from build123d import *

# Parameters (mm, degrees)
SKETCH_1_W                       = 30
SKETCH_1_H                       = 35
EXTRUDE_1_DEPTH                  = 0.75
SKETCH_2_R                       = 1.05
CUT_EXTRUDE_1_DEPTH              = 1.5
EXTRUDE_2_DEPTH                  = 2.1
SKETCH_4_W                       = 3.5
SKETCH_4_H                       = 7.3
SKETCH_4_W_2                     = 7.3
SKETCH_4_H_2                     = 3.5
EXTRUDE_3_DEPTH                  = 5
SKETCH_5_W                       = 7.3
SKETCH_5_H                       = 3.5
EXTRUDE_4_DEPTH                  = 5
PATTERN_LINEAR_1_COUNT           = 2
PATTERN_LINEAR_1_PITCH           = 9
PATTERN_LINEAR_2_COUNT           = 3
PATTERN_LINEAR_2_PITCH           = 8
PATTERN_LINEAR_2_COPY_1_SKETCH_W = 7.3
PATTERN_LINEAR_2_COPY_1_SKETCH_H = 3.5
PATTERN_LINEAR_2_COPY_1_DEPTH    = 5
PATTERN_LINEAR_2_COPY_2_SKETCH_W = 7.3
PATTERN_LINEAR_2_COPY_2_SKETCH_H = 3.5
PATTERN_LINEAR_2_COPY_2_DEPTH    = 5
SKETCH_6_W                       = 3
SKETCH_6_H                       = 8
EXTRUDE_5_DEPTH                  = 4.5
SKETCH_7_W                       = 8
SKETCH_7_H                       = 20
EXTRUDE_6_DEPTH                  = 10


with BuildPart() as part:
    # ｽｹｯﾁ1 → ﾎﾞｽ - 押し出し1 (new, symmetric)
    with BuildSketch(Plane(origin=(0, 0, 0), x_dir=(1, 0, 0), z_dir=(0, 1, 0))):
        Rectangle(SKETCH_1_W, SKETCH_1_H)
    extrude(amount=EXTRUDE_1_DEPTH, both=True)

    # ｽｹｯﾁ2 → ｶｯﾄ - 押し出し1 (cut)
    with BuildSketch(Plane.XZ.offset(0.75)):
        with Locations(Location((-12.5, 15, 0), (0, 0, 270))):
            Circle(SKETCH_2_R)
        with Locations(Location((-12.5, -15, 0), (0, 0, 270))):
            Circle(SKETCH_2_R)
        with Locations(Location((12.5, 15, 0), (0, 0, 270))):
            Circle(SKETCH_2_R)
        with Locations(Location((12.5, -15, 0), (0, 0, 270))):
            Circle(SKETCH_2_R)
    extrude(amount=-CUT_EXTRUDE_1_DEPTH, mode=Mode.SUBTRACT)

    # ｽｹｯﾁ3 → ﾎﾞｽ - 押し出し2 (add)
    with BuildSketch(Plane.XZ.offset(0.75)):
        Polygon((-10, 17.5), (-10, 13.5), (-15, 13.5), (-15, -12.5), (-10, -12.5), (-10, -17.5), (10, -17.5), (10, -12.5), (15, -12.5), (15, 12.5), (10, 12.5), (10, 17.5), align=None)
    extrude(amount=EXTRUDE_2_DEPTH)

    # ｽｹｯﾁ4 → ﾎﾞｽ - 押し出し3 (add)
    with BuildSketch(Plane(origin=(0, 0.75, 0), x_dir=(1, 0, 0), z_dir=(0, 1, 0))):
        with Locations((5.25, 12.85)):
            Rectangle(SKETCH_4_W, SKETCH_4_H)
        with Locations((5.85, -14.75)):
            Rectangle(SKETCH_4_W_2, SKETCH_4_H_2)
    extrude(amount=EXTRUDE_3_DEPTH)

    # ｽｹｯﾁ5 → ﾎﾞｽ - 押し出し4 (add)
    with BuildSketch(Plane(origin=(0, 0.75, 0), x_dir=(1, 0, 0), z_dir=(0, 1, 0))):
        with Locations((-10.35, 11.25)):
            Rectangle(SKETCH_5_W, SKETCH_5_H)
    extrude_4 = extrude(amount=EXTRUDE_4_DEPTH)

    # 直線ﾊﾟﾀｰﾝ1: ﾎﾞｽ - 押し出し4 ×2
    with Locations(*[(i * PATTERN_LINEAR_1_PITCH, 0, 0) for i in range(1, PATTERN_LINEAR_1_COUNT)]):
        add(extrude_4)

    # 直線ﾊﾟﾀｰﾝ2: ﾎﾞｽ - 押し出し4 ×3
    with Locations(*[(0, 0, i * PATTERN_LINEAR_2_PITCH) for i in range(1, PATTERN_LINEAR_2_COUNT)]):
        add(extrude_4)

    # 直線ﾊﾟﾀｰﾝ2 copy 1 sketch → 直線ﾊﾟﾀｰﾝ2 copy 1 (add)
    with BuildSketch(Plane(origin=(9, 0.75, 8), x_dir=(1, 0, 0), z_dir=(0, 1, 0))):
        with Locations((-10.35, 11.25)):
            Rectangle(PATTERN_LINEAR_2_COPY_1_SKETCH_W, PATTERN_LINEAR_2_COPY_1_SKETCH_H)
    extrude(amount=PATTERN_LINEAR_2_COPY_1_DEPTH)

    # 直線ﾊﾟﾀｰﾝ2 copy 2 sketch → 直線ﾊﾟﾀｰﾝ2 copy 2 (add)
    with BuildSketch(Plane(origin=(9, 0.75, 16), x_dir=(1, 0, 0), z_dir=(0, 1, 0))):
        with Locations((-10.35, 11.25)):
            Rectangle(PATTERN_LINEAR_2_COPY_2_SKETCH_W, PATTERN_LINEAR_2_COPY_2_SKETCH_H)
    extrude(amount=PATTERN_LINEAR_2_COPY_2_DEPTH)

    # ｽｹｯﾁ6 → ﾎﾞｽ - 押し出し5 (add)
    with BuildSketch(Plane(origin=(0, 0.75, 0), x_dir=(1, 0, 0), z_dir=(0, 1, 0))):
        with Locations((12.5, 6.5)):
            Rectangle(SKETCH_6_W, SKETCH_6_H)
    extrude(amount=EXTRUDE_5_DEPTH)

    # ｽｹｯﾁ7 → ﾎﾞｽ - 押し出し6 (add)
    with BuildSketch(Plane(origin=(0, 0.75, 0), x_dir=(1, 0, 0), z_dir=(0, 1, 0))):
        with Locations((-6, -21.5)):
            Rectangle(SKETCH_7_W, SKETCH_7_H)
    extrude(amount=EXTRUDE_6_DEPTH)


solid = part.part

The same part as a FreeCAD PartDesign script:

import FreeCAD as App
import Part
import Sketcher
from FreeCAD import Vector
Q = App.Units.Quantity


def add_polygon(sketch, points):
    """Adds a closed chain of lines whose ends are joined by coincident constraints."""
    first, n = sketch.GeometryCount, len(points)
    for a, b in zip(points, points[1:] + points[:1]):
        sketch.addGeometry(Part.LineSegment(App.Vector(*a, 0), App.Vector(*b, 0)), False)
    for i in range(n):
        sketch.addConstraint(Sketcher.Constraint("Coincident", first + i, 2, first + (i + 1) % n, 1))

doc = App.newDocument("Part")
body = doc.addObject("PartDesign::Body", "Body")

# Sketch on XZ plane
sketch1 = doc.addObject("Sketcher::SketchObject", "Sketch")
body.addObject(sketch1)
sketch1.AttachmentSupport = (doc.XZ_Plane, [""])
sketch1.MapMode = "FlatFace"
add_polygon(sketch1, [(-15, -18), (-15, 18), (15, 18), (15, -18)])  # lines 0-3
sketch1.addConstraint([
    Sketcher.Constraint("Vertical", 0),
    Sketcher.Constraint("Horizontal", 1),
    Sketcher.Constraint("Vertical", 2),
    Sketcher.Constraint("Horizontal", 3),
    Sketcher.Constraint("Symmetric", 0, 2, 2, 2, -1, 1),
    Sketcher.Constraint("DistanceX", 1, 1, 1, 2, Q("30 mm")),
    Sketcher.Constraint("DistanceY", 0, 1, 0, 2, Q("35 mm")),
])
pad1 = doc.addObject("PartDesign::Pad", "Pad")
body.addObject(pad1)
pad1.Profile = sketch1
pad1.Length = 1.5
pad1.Midplane = True

# Sketch on XZ plane
sketch2 = doc.addObject("Sketcher::SketchObject", "Sketch001")
body.addObject(sketch2)
sketch2.AttachmentSupport = (doc.XZ_Plane, [""])
sketch2.MapMode = "FlatFace"
sketch2.AttachmentOffset = App.Placement(Vector(0, 0, 0.75), App.Rotation())
sketch2.addGeometry([
    Part.Circle(Vector(-12.5, 15, 0), Vector(0, 0, 1), 1.1),
    Part.Circle(Vector(-12.5, -15, 0), Vector(0, 0, 1), 1.1),
    Part.Circle(Vector(12.5, 15, 0), Vector(0, 0, 1), 1.1),
    Part.Circle(Vector(12.5, -15, 0), Vector(0, 0, 1), 1.1),
], False)
sketch2.addConstraint([
    Sketcher.Constraint("Equal", 0, 1),
    Sketcher.Constraint("Equal", 1, 2),
    Sketcher.Constraint("Equal", 2, 3),
    Sketcher.Constraint("Symmetric", 1, 3, 2, 3, -1, 1),
    Sketcher.Constraint("Symmetric", 0, 3, 3, 3, -1, 1),
    Sketcher.Constraint("Symmetric", 0, 3, 2, 3, -2),
    Sketcher.Constraint("Diameter", 0, Q("2.1 mm")),
    Sketcher.Constraint("DistanceY", -1, 1, 0, 3, Q("15 mm")),
    Sketcher.Constraint("DistanceX", 0, 3, 2, 3, Q("25 mm")),
])
pocket1 = doc.addObject("PartDesign::Pocket", "Pocket")
body.addObject(pocket1)
pocket1.Profile = sketch2
pocket1.Length = 1.5

# Sketch on XZ plane
sketch3 = doc.addObject("Sketcher::SketchObject", "Sketch002")
body.addObject(sketch3)
sketch3.AttachmentSupport = (doc.XZ_Plane, [""])
sketch3.MapMode = "FlatFace"
sketch3.AttachmentOffset = App.Placement(Vector(0, 0, 0.75), App.Rotation())
add_polygon(sketch3, [(-10, 17.5), (-10, 13.5), (-15, 13.5), (-15, -12.5), (-10, -12.5), (-10, -17.5), (10, -17.5), (10, -12.5), (15, -12.5), (15, 12.5), (10, 12.5), (10, 17.5)])  # lines 0-11
sketch3.addConstraint([
    Sketcher.Constraint("Vertical", 0),
    Sketcher.Constraint("Horizontal", 1),
    Sketcher.Constraint("Vertical", 2),
    Sketcher.Constraint("Horizontal", 3),
    Sketcher.Constraint("Vertical", 4),
    Sketcher.Constraint("Horizontal", 5),
    Sketcher.Constraint("Vertical", 6),
    Sketcher.Constraint("Horizontal", 7),
    Sketcher.Constraint("Vertical", 8),
    Sketcher.Constraint("Horizontal", 9),
    Sketcher.Constraint("Vertical", 10),
    Sketcher.Constraint("Horizontal", 11),
    Sketcher.Constraint("Symmetric", 2, 2, 8, 2, -1, 1),
    Sketcher.Constraint("Symmetric", 4, 2, 10, 2, -1, 1),
    Sketcher.Constraint("Symmetric", 3, 2, 6, 2, -2),
    Sketcher.Constraint("Vertical", 0, 2, 3, 2),
    Sketcher.Constraint("Equal", 9, 4),
    Sketcher.Constraint("DistanceX", 1, 2, 1, 1, Q("5 mm")),
    Sketcher.Constraint("DistanceX", 5, 1, 5, 2, Q("20 mm")),
    Sketcher.Constraint("DistanceY", 0, 2, 0, 1, Q("4 mm")),
    Sketcher.Constraint("DistanceY", 2, 2, 2, 1, Q("26 mm")),
])
pad2 = doc.addObject("PartDesign::Pad", "Pad001")
body.addObject(pad2)
pad2.Profile = sketch3
pad2.Length = 2.1

# Sketch on XZ plane
sketch4 = doc.addObject("Sketcher::SketchObject", "Sketch003")
body.addObject(sketch4)
sketch4.AttachmentSupport = (doc.XZ_Plane, [""])
sketch4.MapMode = "FlatFace"
sketch4.AttachmentOffset = App.Placement(Vector(0, 0, -0.75), App.Rotation())
add_polygon(sketch4, [(3.5, -16.5), (3.5, -9.2), (7, -9.2), (7, -16.5)])  # lines 0-3
add_polygon(sketch4, [(2.2, 13), (2.2, 16.5), (9.5, 16.5), (9.5, 13)])  # lines 4-7
sketch4.addConstraint([
    Sketcher.Constraint("Vertical", 0),
    Sketcher.Constraint("Horizontal", 1),
    Sketcher.Constraint("Vertical", 2),
    Sketcher.Constraint("Horizontal", 3),
    Sketcher.Constraint("Vertical", 4),
    Sketcher.Constraint("Horizontal", 5),
    Sketcher.Constraint("Vertical", 6),
    Sketcher.Constraint("Horizontal", 7),
    Sketcher.Constraint("Equal", 7, 0),
    Sketcher.Constraint("Equal", 3, 4),
    Sketcher.Constraint("DistanceX", 1, 1, 1, 2, Q("3.5 mm")),
    Sketcher.Constraint("DistanceX", 5, 1, 5, 2, Q("7.3 mm")),
    Sketcher.Constraint("DistanceX", -1, 1, 1, 2, Q("7 mm")),
    Sketcher.Constraint("DistanceY", -1, 1, 6, 2, Q("13 mm")),
    Sketcher.Constraint("DistanceY", 3, 2, 4, 2, Q("33 mm")),
    Sketcher.Constraint("DistanceX", 0, 2, 5, 2, Q("6 mm")),
])
pad3 = doc.addObject("PartDesign::Pad", "Pad002")
body.addObject(pad3)
pad3.Profile = sketch4
pad3.Length = 5
pad3.Reversed = True

# Sketch on XZ plane
sketch5 = doc.addObject("Sketcher::SketchObject", "Sketch004")
body.addObject(sketch5)
sketch5.AttachmentSupport = (doc.XZ_Plane, [""])
sketch5.MapMode = "FlatFace"
sketch5.AttachmentOffset = App.Placement(Vector(0, 0, -0.75), App.Rotation())
add_polygon(sketch5, [(-14, -13), (-14, -9.5), (-6.7, -9.5), (-6.7, -13)])  # lines 0-3
sketch5.addConstraint([
    Sketcher.Constraint("Vertical", 0),
    Sketcher.Constraint("Horizontal", 1),
    Sketcher.Constraint("Vertical", 2),
    Sketcher.Constraint("Horizontal", 3),
    Sketcher.Constraint("DistanceX", 1, 1, 1, 2, Q("7.3 mm")),
    Sketcher.Constraint("DistanceY", 0, 1, 0, 2, Q("3.5 mm")),
    Sketcher.Constraint("DistanceX", 0, 2, -1, 1, Q("14 mm")),
    Sketcher.Constraint("DistanceY", 2, 2, -1, 1, Q("13 mm")),
])
pad4 = doc.addObject("PartDesign::Pad", "Pad003")
body.addObject(pad4)
pad4.Profile = sketch5
pad4.Length = 5
pad4.Reversed = True
doc.recompute()

linearpattern = doc.addObject("PartDesign::LinearPattern", "LinearPattern")
body.addObject(linearpattern)
linearpattern.Originals = [pad4]
linearpattern.Direction = (doc.X_Axis, [""])
linearpattern.Mode = "offset"
linearpattern.Offset = 9
linearpattern.Occurrences = 2
body.Tip = linearpattern
doc.recompute()

linearpattern2 = doc.addObject("PartDesign::LinearPattern", "LinearPattern001")
body.addObject(linearpattern2)
linearpattern2.Originals = [pad4]
linearpattern2.Direction = (doc.Z_Axis, [""])
linearpattern2.Mode = "offset"
linearpattern2.Offset = 8
linearpattern2.Occurrences = 3
body.Tip = linearpattern2

# Sketch on XZ plane
sketch6 = doc.addObject("Sketcher::SketchObject", "Sketch005")
body.addObject(sketch6)
sketch6.AttachmentSupport = (doc.XZ_Plane, [""])
sketch6.MapMode = "FlatFace"
sketch6.AttachmentOffset = App.Placement(Vector(0, 0, -0.75), App.Rotation())
add_polygon(sketch6, [(-5, -5), (-5, -1.5), (2.3, -1.5), (2.3, -5)])  # lines 0-3
sketch6.addConstraint([
    Sketcher.Constraint("Vertical", 0),
    Sketcher.Constraint("Horizontal", 1),
    Sketcher.Constraint("Vertical", 2),
    Sketcher.Constraint("Horizontal", 3),
    Sketcher.Constraint("DistanceX", 1, 1, 1, 2, Q("7.3 mm")),
    Sketcher.Constraint("DistanceY", 0, 1, 0, 2, Q("3.5 mm")),
    Sketcher.Constraint("DistanceX", 0, 2, -1, 1, Q("5 mm")),
    Sketcher.Constraint("DistanceY", 2, 2, -1, 1, Q("5 mm")),
])
pad5 = doc.addObject("PartDesign::Pad", "Pad004")
body.addObject(pad5)
pad5.Profile = sketch6
pad5.Length = 5
pad5.Reversed = True

# Sketch on XZ plane
sketch7 = doc.addObject("Sketcher::SketchObject", "Sketch006")
body.addObject(sketch7)
sketch7.AttachmentSupport = (doc.XZ_Plane, [""])
sketch7.MapMode = "FlatFace"
sketch7.AttachmentOffset = App.Placement(Vector(0, 0, -0.75), App.Rotation())
add_polygon(sketch7, [(-5, 3), (-5, 6.5), (2.3, 6.5), (2.3, 3)])  # lines 0-3
sketch7.addConstraint([
    Sketcher.Constraint("Vertical", 0),
    Sketcher.Constraint("Horizontal", 1),
    Sketcher.Constraint("Vertical", 2),
    Sketcher.Constraint("Horizontal", 3),
    Sketcher.Constraint("DistanceX", 1, 1, 1, 2, Q("7.3 mm")),
    Sketcher.Constraint("DistanceY", 0, 1, 0, 2, Q("3.5 mm")),
    Sketcher.Constraint("DistanceX", 0, 2, -1, 1, Q("5 mm")),
    Sketcher.Constraint("DistanceY", -1, 1, 2, 2, Q("3 mm")),
])
pad6 = doc.addObject("PartDesign::Pad", "Pad005")
body.addObject(pad6)
pad6.Profile = sketch7
pad6.Length = 5
pad6.Reversed = True

# Sketch on XZ plane
sketch8 = doc.addObject("Sketcher::SketchObject", "Sketch007")
body.addObject(sketch8)
sketch8.AttachmentSupport = (doc.XZ_Plane, [""])
sketch8.MapMode = "FlatFace"
sketch8.AttachmentOffset = App.Placement(Vector(0, 0, -0.75), App.Rotation())
add_polygon(sketch8, [(11, -10.5), (11, -2.5), (14, -2.5), (14, -10.5)])  # lines 0-3
sketch8.addConstraint([
    Sketcher.Constraint("Vertical", 0),
    Sketcher.Constraint("Horizontal", 1),
    Sketcher.Constraint("Vertical", 2),
    Sketcher.Constraint("Horizontal", 3),
    Sketcher.Constraint("DistanceX", 1, 1, 1, 2, Q("3 mm")),
    Sketcher.Constraint("DistanceY", 0, 1, 0, 2, Q("8 mm")),
    Sketcher.Constraint("DistanceX", -1, 1, 0, 2, Q("11 mm")),
    Sketcher.Constraint("DistanceY", 0, 2, -1, 1, Q("2.5 mm")),
])
pad7 = doc.addObject("PartDesign::Pad", "Pad006")
body.addObject(pad7)
pad7.Profile = sketch8
pad7.Length = 4.5
pad7.Reversed = True

# Sketch on XZ plane
sketch9 = doc.addObject("Sketcher::SketchObject", "Sketch008")
body.addObject(sketch9)
sketch9.AttachmentSupport = (doc.XZ_Plane, [""])
sketch9.MapMode = "FlatFace"
sketch9.AttachmentOffset = App.Placement(Vector(0, 0, -0.75), App.Rotation())
add_polygon(sketch9, [(-10, 12), (-10, 32), (-2, 32), (-2, 12)])  # lines 0-3
sketch9.addConstraint([
    Sketcher.Constraint("Vertical", 0),
    Sketcher.Constraint("Horizontal", 1),
    Sketcher.Constraint("Vertical", 2),
    Sketcher.Constraint("Horizontal", 3),
    Sketcher.Constraint("DistanceX", 1, 1, 1, 2, Q("8 mm")),
    Sketcher.Constraint("DistanceY", 0, 1, 0, 2, Q("20 mm")),
    Sketcher.Constraint("DistanceX", 0, 2, -1, 1, Q("10 mm")),
    Sketcher.Constraint("DistanceY", -1, 1, 0, 2, Q("31.5 mm")),
])
pad8 = doc.addObject("PartDesign::Pad", "Pad007")
body.addObject(pad8)
pad8.Profile = sketch9
pad8.Length = 10
pad8.Reversed = True

doc.recompute()
